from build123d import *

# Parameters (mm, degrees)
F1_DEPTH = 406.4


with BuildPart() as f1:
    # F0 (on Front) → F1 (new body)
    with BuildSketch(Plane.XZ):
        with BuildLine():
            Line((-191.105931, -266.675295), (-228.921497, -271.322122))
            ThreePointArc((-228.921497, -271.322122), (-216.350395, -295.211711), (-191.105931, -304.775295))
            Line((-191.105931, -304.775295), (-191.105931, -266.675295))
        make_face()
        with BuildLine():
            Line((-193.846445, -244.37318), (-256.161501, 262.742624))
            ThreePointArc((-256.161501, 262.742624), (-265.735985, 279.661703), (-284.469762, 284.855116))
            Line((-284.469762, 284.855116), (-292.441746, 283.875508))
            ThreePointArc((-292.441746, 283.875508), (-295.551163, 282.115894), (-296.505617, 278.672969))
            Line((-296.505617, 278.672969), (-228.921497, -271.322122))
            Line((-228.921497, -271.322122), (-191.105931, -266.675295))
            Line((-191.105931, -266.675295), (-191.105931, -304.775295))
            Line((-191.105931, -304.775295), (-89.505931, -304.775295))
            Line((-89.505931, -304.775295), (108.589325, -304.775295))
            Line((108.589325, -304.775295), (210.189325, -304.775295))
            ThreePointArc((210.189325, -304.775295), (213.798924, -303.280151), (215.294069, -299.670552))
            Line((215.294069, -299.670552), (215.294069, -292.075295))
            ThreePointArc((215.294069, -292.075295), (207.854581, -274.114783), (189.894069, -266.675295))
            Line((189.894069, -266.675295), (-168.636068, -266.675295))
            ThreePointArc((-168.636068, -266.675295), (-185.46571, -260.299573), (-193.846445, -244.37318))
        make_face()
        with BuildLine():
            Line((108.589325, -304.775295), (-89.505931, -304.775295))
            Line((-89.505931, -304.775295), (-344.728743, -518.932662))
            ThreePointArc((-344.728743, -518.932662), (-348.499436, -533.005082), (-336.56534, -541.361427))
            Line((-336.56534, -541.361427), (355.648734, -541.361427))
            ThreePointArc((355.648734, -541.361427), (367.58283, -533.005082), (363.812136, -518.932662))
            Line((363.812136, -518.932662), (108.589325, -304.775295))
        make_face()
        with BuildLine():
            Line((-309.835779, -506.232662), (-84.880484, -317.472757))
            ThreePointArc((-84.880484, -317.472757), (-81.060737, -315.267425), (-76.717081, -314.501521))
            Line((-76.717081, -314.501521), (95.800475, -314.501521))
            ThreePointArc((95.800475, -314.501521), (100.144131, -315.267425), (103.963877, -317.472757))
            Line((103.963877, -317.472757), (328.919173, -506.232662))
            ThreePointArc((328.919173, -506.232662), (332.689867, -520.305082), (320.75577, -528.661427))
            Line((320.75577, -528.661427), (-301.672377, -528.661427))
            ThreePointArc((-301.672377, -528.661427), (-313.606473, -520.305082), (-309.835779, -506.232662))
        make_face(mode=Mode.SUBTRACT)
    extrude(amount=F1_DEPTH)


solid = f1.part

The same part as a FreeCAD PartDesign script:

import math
import FreeCAD as App
import Part
import Sketcher
from FreeCAD import Vector
Q = App.Units.Quantity

doc = App.newDocument("Part")
body = doc.addObject("PartDesign::Body", "Body")

sketch1 = body.newObject("Sketcher::SketchObject", "Sketch")
sketch1.AttachmentSupport = (doc.getObject("XZ_Plane"), [""])
sketch1.MapMode = "FlatFace"
sketch1.addGeometry([
    Part.ArcOfCircle(Part.Circle(Vector(-191.1, -266.7, 0), Vector(0, 0, 1), 38.1), math.radians(-173), math.radians(-90)),
    Part.LineSegment(Vector(-191.1, -304.8, 0), Vector(-89.5, -304.8, 0)),
    Part.LineSegment(Vector(-89.5, -304.8, 0), Vector(-344.7, -518.9, 0)),
    Part.ArcOfCircle(Part.Circle(Vector(-336.6, -528.7, 0), Vector(0, 0, 1), 12.7), math.radians(130), math.radians(270)),
    Part.LineSegment(Vector(-336.6, -541.4, 0), Vector(355.6, -541.4, 0)),
    Part.ArcOfCircle(Part.Circle(Vector(355.6, -528.7, 0), Vector(0, 0, 1), 12.7), math.radians(-90), math.radians(50)),
    Part.LineSegment(Vector(363.8, -518.9, 0), Vector(108.6, -304.8, 0)),
    Part.LineSegment(Vector(108.6, -304.8, 0), Vector(210.2, -304.8, 0)),
    Part.ArcOfCircle(Part.Circle(Vector(210.2, -299.7, 0), Vector(0, 0, 1), 5.1), math.radians(-90), math.radians(0)),
    Part.LineSegment(Vector(215.3, -299.7, 0), Vector(215.3, -292.1, 0)),
    Part.ArcOfCircle(Part.Circle(Vector(189.9, -292.1, 0), Vector(0, 0, 1), 25.4), math.radians(0), math.radians(90)),
    Part.LineSegment(Vector(189.9, -266.7, 0), Vector(-168.6, -266.7, 0)),
    Part.ArcOfCircle(Part.Circle(Vector(-168.6, -241.3, 0), Vector(0, 0, 1), 25.4), math.radians(-173), math.radians(-90)),
    Part.LineSegment(Vector(-193.8, -244.4, 0), Vector(-256.2, 262.7, 0)),
    Part.ArcOfCircle(Part.Circle(Vector(-281.4, 259.6, 0), Vector(0, 0, 1), 25.4), math.radians(7), math.radians(97)),
    Part.LineSegment(Vector(-284.5, 284.9, 0), Vector(-292.4, 283.9, 0)),
    Part.ArcOfCircle(Part.Circle(Vector(-291.9, 279.2, 0), Vector(0, 0, 1), 4.7), math.radians(97), math.radians(187)),
    Part.LineSegment(Vector(-296.5, 278.7, 0), Vector(-228.9, -271.3, 0)),
    Part.ArcOfCircle(Part.Circle(Vector(-301.7, -516, 0), Vector(0, 0, 1), 12.7), math.radians(130), math.radians(270)),
    Part.LineSegment(Vector(-309.8, -506.2, 0), Vector(-84.9, -317.5, 0)),
    Part.ArcOfCircle(Part.Circle(Vector(-76.7, -327.2, 0), Vector(0, 0, 1), 12.7), math.radians(90), math.radians(130)),
    Part.LineSegment(Vector(-76.7, -314.5, 0), Vector(95.8, -314.5, 0)),
    Part.ArcOfCircle(Part.Circle(Vector(95.8, -327.2, 0), Vector(0, 0, 1), 12.7), math.radians(50), math.radians(90)),
    Part.LineSegment(Vector(104, -317.5, 0), Vector(328.9, -506.2, 0)),
    Part.ArcOfCircle(Part.Circle(Vector(320.8, -516, 0), Vector(0, 0, 1), 12.7), math.radians(-90), math.radians(50)),
    Part.LineSegment(Vector(320.8, -528.7, 0), Vector(-301.7, -528.7, 0)),
], False)
sketch1.addConstraint([
    Sketcher.Constraint("Tangent", 0, 2, 1, 1),
    Sketcher.Constraint("Coincident", 1, 2, 2, 1),
    Sketcher.Constraint("Tangent", 2, 2, 3, 1),
    Sketcher.Constraint("Tangent", 3, 2, 4, 1),
    Sketcher.Constraint("Tangent", 4, 2, 5, 1),
    Sketcher.Constraint("Tangent", 5, 2, 6, 1),
    Sketcher.Constraint("Coincident", 6, 2, 7, 1),
    Sketcher.Constraint("Tangent", 7, 2, 8, 1),
    Sketcher.Constraint("Tangent", 8, 2, 9, 1),
    Sketcher.Constraint("Tangent", 9, 2, 10, 1),
    Sketcher.Constraint("Tangent", 10, 2, 11, 1),
    Sketcher.Constraint("Tangent", 11, 2, 12, 2),
    Sketcher.Constraint("Tangent", 12, 1, 13, 1),
    Sketcher.Constraint("Tangent", 13, 2, 14, 1),
    Sketcher.Constraint("Tangent", 14, 2, 15, 1),
    Sketcher.Constraint("Tangent", 15, 2, 16, 1),
    Sketcher.Constraint("Tangent", 16, 2, 17, 1),
    Sketcher.Constraint("Tangent", 17, 2, 0, 1),
    Sketcher.Constraint("Tangent", 18, 1, 19, 1),
    Sketcher.Constraint("Tangent", 19, 2, 20, 2),
    Sketcher.Constraint("Tangent", 20, 1, 21, 1),
    Sketcher.Constraint("Tangent", 21, 2, 22, 2),
    Sketcher.Constraint("Tangent", 22, 1, 23, 1),
    Sketcher.Constraint("Tangent", 23, 2, 24, 2),
    Sketcher.Constraint("Tangent", 24, 1, 25, 1),
    Sketcher.Constraint("Tangent", 25, 2, 18, 2),
    Sketcher.Constraint("Horizontal", 1),
    Sketcher.Constraint("Horizontal", 4),
    Sketcher.Constraint("Horizontal", 7),
    Sketcher.Constraint("Vertical", 9),
    Sketcher.Constraint("Horizontal", 11),
    Sketcher.Constraint("Horizontal", 21),
    Sketcher.Constraint("Horizontal", 25),
    Sketcher.Constraint("Equal", 3, 5),
    Sketcher.Constraint("Equal", 10, 12),
    Sketcher.Constraint("Equal", 12, 14),
    Sketcher.Constraint("Equal", 5, 18),
    Sketcher.Constraint("Equal", 3, 20),
    Sketcher.Constraint("Equal", 18, 24),
    Sketcher.Constraint("Perpendicular", 13, 15),
    Sketcher.Constraint("Perpendicular", 15, 17),
    Sketcher.Constraint("Parallel", 2, 19),
    Sketcher.Constraint("Parallel", 6, 23),
    Sketcher.Constraint("Horizontal", 1, 2, 6, 2),
    Sketcher.Constraint("Horizontal", 0, 3, 10, 2),
    Sketcher.Constraint("Horizontal", 19, 2, 22, 1),
    Sketcher.Constraint("Horizontal", 5, 3, 24, 1),
    Sketcher.Constraint("Equal", 1, 7),
    Sketcher.Constraint("Equal", 2, 6),
    Sketcher.Constraint("Radius", 10, Q("1 in")),
    Sketcher.Constraint("Radius", 0, Q("1.5 in")),
    Sketcher.Constraint("Radius", 3, Q("0.5 in")),
    Sketcher.Constraint("DistanceX", 1, 1, 1, 2, Q("4 in")),
    Sketcher.Constraint("Angle", 2, Q("-140 deg")),
    Sketcher.Constraint("DistanceX", 0, 3, 10, 3, Q("15 in")),
    Sketcher.Constraint("Radius", 8, 5.104743),
    Sketcher.Constraint("Radius", 16, 4.668053),
    Sketcher.Constraint("DistanceY", 19, 2, 1, 2, Q("0.4999001 in")),
    Sketcher.Constraint("DistanceX", 13, 2, -1, 1, 256.161501),
    Sketcher.Constraint("DistanceX", 12, 3, 5, 3, 524.284801),
    Sketcher.Constraint("DistanceY", 12, 3, 16, 3, 520.517599),
    Sketcher.Constraint("DistanceX", 15, 2, 12, 1, 98.595301),
    Sketcher.Constraint("Distance", 2, 333.169719),
    Sketcher.Constraint("DistanceX", 21, 1, 21, 2, 172.517556),
    Sketcher.Constraint("DistanceY", -1, 1, 14, 3, 259.644739),
    Sketcher.Constraint("DistanceX", 20, 3, -1, 1, 76.71708),
])
pad1 = body.newObject("PartDesign::Pad", "Pad")
pad1.Profile = sketch1
pad1.Length = Q("16 in")

doc.recompute()
